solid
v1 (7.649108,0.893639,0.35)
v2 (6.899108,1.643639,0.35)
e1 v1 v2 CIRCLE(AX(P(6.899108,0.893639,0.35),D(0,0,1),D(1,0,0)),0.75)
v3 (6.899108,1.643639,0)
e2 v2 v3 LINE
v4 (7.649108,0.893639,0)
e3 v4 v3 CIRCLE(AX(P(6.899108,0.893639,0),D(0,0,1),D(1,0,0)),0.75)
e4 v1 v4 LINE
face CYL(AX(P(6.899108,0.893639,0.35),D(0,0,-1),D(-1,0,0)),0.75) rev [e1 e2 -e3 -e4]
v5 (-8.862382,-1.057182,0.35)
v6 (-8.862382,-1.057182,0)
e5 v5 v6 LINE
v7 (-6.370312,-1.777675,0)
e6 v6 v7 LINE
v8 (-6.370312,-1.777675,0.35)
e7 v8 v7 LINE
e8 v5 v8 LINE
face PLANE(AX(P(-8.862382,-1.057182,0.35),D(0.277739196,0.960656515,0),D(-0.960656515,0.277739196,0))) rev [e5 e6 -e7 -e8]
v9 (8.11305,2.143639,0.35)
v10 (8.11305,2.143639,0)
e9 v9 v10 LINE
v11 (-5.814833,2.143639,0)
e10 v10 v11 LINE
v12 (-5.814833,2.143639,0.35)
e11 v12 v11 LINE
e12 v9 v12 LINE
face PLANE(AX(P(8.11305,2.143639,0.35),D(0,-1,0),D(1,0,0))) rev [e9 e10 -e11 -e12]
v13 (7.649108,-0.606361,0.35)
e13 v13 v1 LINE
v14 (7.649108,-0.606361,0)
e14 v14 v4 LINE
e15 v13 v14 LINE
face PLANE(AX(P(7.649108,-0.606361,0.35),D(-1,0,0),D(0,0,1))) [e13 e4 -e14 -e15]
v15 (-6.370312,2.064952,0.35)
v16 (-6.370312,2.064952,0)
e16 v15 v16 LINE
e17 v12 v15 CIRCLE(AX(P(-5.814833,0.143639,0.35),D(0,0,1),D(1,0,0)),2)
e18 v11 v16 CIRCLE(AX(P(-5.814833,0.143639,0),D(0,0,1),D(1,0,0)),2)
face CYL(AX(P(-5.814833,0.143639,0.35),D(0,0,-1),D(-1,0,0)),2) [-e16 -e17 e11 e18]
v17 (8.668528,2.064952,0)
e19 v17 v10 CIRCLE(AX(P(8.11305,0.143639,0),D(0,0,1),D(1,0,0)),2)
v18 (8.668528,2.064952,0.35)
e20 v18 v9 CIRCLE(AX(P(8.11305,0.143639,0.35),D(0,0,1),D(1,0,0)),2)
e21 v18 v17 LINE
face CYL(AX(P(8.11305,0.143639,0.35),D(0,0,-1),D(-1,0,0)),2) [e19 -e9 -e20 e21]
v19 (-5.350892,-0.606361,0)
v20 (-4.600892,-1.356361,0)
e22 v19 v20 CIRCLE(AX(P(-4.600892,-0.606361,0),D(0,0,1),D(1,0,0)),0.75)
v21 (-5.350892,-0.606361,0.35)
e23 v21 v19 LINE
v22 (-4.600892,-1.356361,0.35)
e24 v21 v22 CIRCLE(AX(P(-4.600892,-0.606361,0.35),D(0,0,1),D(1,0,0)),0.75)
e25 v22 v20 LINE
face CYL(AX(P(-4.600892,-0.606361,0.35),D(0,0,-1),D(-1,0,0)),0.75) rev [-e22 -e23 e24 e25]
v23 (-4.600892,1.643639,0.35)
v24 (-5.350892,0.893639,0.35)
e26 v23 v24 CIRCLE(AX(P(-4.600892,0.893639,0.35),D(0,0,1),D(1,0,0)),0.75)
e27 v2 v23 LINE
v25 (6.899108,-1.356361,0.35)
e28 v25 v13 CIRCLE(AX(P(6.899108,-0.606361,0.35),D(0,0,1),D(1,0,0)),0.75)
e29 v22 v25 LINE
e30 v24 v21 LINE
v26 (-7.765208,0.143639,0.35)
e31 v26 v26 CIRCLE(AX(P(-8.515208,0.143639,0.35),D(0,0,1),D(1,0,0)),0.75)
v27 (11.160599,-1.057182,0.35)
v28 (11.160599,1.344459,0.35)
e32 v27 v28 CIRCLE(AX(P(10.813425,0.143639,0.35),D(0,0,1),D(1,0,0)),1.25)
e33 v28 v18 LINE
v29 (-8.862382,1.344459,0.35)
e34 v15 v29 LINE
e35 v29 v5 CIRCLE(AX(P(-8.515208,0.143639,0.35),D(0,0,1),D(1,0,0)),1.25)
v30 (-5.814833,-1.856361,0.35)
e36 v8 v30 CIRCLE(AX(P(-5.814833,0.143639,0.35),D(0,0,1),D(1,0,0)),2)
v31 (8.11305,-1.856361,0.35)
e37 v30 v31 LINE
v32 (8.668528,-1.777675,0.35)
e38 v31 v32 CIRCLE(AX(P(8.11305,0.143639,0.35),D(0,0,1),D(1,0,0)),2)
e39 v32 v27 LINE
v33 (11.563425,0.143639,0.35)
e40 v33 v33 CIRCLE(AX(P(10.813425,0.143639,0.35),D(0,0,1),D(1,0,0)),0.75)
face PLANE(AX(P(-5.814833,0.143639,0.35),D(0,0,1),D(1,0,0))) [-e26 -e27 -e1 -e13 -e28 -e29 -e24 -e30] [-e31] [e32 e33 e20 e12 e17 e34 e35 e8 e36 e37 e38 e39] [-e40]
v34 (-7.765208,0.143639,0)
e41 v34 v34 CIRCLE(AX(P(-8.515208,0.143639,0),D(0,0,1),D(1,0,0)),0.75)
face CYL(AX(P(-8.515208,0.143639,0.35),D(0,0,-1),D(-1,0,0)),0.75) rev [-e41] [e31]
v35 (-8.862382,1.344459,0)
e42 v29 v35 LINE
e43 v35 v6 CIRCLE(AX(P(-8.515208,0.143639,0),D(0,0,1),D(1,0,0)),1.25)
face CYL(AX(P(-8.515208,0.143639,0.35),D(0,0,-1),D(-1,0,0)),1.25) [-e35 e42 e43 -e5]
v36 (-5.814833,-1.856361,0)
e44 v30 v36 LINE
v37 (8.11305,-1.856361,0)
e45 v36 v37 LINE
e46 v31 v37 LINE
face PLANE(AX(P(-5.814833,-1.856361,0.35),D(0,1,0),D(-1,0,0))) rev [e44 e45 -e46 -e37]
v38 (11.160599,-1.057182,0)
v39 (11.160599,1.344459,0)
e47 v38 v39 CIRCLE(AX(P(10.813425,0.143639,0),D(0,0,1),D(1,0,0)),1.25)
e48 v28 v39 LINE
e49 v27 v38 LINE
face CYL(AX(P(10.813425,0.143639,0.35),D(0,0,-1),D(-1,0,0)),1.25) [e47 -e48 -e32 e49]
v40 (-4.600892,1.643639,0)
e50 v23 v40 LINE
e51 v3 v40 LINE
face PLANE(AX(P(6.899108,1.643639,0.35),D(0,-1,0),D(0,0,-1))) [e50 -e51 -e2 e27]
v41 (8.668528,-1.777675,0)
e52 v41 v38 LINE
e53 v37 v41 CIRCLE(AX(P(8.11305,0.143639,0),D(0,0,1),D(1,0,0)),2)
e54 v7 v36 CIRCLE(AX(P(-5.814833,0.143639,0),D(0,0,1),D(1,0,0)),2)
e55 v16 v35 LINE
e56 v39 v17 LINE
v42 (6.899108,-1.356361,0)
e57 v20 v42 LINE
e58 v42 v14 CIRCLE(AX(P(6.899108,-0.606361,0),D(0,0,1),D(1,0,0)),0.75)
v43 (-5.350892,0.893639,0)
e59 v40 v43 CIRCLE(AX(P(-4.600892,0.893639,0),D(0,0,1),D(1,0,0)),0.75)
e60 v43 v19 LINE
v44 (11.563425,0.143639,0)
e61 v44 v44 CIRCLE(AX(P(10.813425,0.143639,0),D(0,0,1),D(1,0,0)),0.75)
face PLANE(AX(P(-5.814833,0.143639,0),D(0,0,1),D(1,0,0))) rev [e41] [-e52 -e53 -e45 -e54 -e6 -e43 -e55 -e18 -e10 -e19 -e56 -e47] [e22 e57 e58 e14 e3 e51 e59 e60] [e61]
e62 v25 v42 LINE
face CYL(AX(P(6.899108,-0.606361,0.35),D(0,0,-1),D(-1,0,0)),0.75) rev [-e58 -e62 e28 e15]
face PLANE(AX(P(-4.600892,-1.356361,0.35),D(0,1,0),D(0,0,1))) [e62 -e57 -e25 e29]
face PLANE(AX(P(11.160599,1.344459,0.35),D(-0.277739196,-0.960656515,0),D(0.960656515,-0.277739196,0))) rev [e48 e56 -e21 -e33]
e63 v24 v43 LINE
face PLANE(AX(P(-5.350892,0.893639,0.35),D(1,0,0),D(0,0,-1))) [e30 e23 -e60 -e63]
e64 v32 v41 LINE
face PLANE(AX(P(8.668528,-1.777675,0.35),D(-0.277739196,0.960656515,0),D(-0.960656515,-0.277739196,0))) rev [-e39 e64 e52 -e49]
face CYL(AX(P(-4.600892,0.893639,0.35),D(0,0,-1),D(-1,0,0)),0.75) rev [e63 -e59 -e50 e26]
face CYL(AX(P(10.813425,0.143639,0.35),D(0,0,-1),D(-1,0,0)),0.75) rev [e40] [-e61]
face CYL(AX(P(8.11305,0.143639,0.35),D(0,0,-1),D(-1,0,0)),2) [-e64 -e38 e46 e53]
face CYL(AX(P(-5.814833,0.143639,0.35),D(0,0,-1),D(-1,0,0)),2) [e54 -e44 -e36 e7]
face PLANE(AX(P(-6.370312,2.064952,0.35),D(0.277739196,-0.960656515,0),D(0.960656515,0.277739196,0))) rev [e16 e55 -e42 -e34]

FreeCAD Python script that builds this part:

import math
import FreeCAD as App
import Part
import Sketcher

V = App.Vector
Q = App.Units.Quantity

doc = App.newDocument("Part")
body = doc.addObject("PartDesign::Body", "Body")

sketch1 = body.newObject("Sketcher::SketchObject", "Sketch")
sketch1.AttachmentSupport = (doc.getObject("XY_Plane"), [""])
sketch1.MapMode = "FlatFace"
sketch1.addGeometry([
    Part.LineSegment(V(-5.8, -1.9, 0), V(8.1, -1.9, 0)),
    Part.ArcOfCircle(Part.Circle(V(8.1, 0.1, 0), V(0, 0, 1), 2), math.radians(-90), math.radians(-73.87)),
    Part.LineSegment(V(8.7, -1.8, 0), V(11.2, -1.1, 0)),
    Part.ArcOfCircle(Part.Circle(V(10.8, 0.1, 0), V(0, 0, 1), 1.2), math.radians(-74), math.radians(74)),
    Part.LineSegment(V(11.2, 1.3, 0), V(8.7, 2.1, 0)),
    Part.ArcOfCircle(Part.Circle(V(8.1, 0.1, 0), V(0, 0, 1), 2), math.radians(73.87), math.radians(90)),
    Part.LineSegment(V(8.1, 2.1, 0), V(-5.8, 2.1, 0)),
    Part.ArcOfCircle(Part.Circle(V(-5.8, 0.1, 0), V(0, 0, 1), 2), math.radians(90), math.radians(106.13)),
    Part.LineSegment(V(-6.4, 2.1, 0), V(-8.9, 1.3, 0)),
    Part.ArcOfCircle(Part.Circle(V(-8.5, 0.1, 0), V(0, 0, 1), 1.2), math.radians(106), math.radians(254)),
    Part.LineSegment(V(-8.9, -1.1, 0), V(-6.4, -1.8, 0)),
    Part.ArcOfCircle(Part.Circle(V(-5.8, 0.1, 0), V(0, 0, 1), 2), math.radians(-106.13), math.radians(-90)),
    Part.Circle(V(-8.5, 0.1, 0), V(0, 0, 1), 0.8),
    Part.LineSegment(V(7.6, 0.9, 0), V(7.6, -0.6, 0)),
    Part.ArcOfCircle(Part.Circle(V(6.9, -0.6, 0), V(0, 0, 1), 0.8), math.radians(-90), math.radians(0)),
    Part.LineSegment(V(6.9, -1.4, 0), V(-4.6, -1.4, 0)),
    Part.ArcOfCircle(Part.Circle(V(-4.6, -0.6, 0), V(0, 0, 1), 0.8), math.radians(180), math.radians(270)),
    Part.LineSegment(V(-5.4, -0.6, 0), V(-5.4, 0.9, 0)),
    Part.ArcOfCircle(Part.Circle(V(-4.6, 0.9, 0), V(0, 0, 1), 0.8), math.radians(90), math.radians(180)),
    Part.LineSegment(V(-4.6, 1.6, 0), V(6.9, 1.6, 0)),
    Part.ArcOfCircle(Part.Circle(V(6.9, 0.9, 0), V(0, 0, 1), 0.8), math.radians(0), math.radians(90)),
    Part.Circle(V(10.8, 0.1, 0), V(0, 0, 1), 0.8),
], False)
sketch1.addConstraint([
    Sketcher.Constraint("Tangent", 0, 2, 1, 1),
    Sketcher.Constraint("Tangent", 1, 2, 2, 1),
    Sketcher.Constraint("Tangent", 2, 2, 3, 1),
    Sketcher.Constraint("Tangent", 3, 2, 4, 1),
    Sketcher.Constraint("Tangent", 4, 2, 5, 1),
    Sketcher.Constraint("Tangent", 5, 2, 6, 1),
    Sketcher.Constraint("Tangent", 6, 2, 7, 1),
    Sketcher.Constraint("Tangent", 7, 2, 8, 1),
    Sketcher.Constraint("Tangent", 8, 2, 9, 1),
    Sketcher.Constraint("Tangent", 9, 2, 10, 1),
    Sketcher.Constraint("Tangent", 10, 2, 11, 1),
    Sketcher.Constraint("Tangent", 11, 2, 0, 1),
    Sketcher.Constraint("Tangent", 13, 2, 14, 2),
    Sketcher.Constraint("Tangent", 14, 1, 15, 1),
    Sketcher.Constraint("Tangent", 15, 2, 16, 2),
    Sketcher.Constraint("Tangent", 16, 1, 17, 1),
    Sketcher.Constraint("Tangent", 17, 2, 18, 2),
    Sketcher.Constraint("Tangent", 18, 1, 19, 1),
    Sketcher.Constraint("Tangent", 19, 2, 20, 2),
    Sketcher.Constraint("Tangent", 20, 1, 13, 1),
    Sketcher.Constraint("Horizontal", 0),
    Sketcher.Constraint("Horizontal", 6),
    Sketcher.Constraint("Vertical", 13),
    Sketcher.Constraint("Horizontal", 15),
    Sketcher.Constraint("Vertical", 17),
    Sketcher.Constraint("Horizontal", 19),
    Sketcher.Constraint("Coincident", 5, 3, 1, 3),
    Sketcher.Constraint("Coincident", 11, 3, 7, 3),
    Sketcher.Constraint("Coincident", 12, 3, 9, 3),
    Sketcher.Constraint("Coincident", 21, 3, 3, 3),
    Sketcher.Constraint("Equal", 1, 5),
    Sketcher.Constraint("Equal", 5, 7),
    Sketcher.Constraint("Equal", 3, 9),
    Sketcher.Constraint("Equal", 12, 14),
    Sketcher.Constraint("Equal", 14, 16),
    Sketcher.Constraint("Equal", 16, 18),
    Sketcher.Constraint("Equal", 18, 20),
    Sketcher.Constraint("Equal", 20, 21),
    Sketcher.Constraint("Parallel", 2, 8),
    Sketcher.Constraint("Parallel", 4, 10),
    Sketcher.Constraint("Horizontal", 1, 3, 3, 3),
    Sketcher.Constraint("Radius", 1, Q("2 mm")),
    Sketcher.Constraint("Diameter", 12, Q("1.5 mm")),
    Sketcher.Constraint("Radius", 3, Q("1.25 mm")),
    Sketcher.Constraint("DistanceX", 15, 2, 15, 1, Q("11.5 mm")),
    Sketcher.Constraint("DistanceY", 13, 2, 13, 1, Q("1.5 mm")),
    Sketcher.Constraint("DistanceY", 0, 2, 14, 1, Q("0.5 mm")),
    Sketcher.Constraint("DistanceX", -1, 1, 2, 2, Q("11.160599 mm")),
    Sketcher.Constraint("DistanceX", 0, 1, 0, 2, Q("13.927883 mm")),
    Sketcher.Constraint("DistanceX", -1, 1, 1, 3, Q("8.11305 mm")),
    Sketcher.Constraint("DistanceY", -1, 1, 1, 3, Q("0.143639 mm")),
    Sketcher.Constraint("DistanceX", -1, 1, 14, 3, Q("6.899108 mm")),
])
pad1 = body.newObject("PartDesign::Pad", "Pad")
pad1.Profile = sketch1
pad1.Length = 0.35

doc.recompute()
